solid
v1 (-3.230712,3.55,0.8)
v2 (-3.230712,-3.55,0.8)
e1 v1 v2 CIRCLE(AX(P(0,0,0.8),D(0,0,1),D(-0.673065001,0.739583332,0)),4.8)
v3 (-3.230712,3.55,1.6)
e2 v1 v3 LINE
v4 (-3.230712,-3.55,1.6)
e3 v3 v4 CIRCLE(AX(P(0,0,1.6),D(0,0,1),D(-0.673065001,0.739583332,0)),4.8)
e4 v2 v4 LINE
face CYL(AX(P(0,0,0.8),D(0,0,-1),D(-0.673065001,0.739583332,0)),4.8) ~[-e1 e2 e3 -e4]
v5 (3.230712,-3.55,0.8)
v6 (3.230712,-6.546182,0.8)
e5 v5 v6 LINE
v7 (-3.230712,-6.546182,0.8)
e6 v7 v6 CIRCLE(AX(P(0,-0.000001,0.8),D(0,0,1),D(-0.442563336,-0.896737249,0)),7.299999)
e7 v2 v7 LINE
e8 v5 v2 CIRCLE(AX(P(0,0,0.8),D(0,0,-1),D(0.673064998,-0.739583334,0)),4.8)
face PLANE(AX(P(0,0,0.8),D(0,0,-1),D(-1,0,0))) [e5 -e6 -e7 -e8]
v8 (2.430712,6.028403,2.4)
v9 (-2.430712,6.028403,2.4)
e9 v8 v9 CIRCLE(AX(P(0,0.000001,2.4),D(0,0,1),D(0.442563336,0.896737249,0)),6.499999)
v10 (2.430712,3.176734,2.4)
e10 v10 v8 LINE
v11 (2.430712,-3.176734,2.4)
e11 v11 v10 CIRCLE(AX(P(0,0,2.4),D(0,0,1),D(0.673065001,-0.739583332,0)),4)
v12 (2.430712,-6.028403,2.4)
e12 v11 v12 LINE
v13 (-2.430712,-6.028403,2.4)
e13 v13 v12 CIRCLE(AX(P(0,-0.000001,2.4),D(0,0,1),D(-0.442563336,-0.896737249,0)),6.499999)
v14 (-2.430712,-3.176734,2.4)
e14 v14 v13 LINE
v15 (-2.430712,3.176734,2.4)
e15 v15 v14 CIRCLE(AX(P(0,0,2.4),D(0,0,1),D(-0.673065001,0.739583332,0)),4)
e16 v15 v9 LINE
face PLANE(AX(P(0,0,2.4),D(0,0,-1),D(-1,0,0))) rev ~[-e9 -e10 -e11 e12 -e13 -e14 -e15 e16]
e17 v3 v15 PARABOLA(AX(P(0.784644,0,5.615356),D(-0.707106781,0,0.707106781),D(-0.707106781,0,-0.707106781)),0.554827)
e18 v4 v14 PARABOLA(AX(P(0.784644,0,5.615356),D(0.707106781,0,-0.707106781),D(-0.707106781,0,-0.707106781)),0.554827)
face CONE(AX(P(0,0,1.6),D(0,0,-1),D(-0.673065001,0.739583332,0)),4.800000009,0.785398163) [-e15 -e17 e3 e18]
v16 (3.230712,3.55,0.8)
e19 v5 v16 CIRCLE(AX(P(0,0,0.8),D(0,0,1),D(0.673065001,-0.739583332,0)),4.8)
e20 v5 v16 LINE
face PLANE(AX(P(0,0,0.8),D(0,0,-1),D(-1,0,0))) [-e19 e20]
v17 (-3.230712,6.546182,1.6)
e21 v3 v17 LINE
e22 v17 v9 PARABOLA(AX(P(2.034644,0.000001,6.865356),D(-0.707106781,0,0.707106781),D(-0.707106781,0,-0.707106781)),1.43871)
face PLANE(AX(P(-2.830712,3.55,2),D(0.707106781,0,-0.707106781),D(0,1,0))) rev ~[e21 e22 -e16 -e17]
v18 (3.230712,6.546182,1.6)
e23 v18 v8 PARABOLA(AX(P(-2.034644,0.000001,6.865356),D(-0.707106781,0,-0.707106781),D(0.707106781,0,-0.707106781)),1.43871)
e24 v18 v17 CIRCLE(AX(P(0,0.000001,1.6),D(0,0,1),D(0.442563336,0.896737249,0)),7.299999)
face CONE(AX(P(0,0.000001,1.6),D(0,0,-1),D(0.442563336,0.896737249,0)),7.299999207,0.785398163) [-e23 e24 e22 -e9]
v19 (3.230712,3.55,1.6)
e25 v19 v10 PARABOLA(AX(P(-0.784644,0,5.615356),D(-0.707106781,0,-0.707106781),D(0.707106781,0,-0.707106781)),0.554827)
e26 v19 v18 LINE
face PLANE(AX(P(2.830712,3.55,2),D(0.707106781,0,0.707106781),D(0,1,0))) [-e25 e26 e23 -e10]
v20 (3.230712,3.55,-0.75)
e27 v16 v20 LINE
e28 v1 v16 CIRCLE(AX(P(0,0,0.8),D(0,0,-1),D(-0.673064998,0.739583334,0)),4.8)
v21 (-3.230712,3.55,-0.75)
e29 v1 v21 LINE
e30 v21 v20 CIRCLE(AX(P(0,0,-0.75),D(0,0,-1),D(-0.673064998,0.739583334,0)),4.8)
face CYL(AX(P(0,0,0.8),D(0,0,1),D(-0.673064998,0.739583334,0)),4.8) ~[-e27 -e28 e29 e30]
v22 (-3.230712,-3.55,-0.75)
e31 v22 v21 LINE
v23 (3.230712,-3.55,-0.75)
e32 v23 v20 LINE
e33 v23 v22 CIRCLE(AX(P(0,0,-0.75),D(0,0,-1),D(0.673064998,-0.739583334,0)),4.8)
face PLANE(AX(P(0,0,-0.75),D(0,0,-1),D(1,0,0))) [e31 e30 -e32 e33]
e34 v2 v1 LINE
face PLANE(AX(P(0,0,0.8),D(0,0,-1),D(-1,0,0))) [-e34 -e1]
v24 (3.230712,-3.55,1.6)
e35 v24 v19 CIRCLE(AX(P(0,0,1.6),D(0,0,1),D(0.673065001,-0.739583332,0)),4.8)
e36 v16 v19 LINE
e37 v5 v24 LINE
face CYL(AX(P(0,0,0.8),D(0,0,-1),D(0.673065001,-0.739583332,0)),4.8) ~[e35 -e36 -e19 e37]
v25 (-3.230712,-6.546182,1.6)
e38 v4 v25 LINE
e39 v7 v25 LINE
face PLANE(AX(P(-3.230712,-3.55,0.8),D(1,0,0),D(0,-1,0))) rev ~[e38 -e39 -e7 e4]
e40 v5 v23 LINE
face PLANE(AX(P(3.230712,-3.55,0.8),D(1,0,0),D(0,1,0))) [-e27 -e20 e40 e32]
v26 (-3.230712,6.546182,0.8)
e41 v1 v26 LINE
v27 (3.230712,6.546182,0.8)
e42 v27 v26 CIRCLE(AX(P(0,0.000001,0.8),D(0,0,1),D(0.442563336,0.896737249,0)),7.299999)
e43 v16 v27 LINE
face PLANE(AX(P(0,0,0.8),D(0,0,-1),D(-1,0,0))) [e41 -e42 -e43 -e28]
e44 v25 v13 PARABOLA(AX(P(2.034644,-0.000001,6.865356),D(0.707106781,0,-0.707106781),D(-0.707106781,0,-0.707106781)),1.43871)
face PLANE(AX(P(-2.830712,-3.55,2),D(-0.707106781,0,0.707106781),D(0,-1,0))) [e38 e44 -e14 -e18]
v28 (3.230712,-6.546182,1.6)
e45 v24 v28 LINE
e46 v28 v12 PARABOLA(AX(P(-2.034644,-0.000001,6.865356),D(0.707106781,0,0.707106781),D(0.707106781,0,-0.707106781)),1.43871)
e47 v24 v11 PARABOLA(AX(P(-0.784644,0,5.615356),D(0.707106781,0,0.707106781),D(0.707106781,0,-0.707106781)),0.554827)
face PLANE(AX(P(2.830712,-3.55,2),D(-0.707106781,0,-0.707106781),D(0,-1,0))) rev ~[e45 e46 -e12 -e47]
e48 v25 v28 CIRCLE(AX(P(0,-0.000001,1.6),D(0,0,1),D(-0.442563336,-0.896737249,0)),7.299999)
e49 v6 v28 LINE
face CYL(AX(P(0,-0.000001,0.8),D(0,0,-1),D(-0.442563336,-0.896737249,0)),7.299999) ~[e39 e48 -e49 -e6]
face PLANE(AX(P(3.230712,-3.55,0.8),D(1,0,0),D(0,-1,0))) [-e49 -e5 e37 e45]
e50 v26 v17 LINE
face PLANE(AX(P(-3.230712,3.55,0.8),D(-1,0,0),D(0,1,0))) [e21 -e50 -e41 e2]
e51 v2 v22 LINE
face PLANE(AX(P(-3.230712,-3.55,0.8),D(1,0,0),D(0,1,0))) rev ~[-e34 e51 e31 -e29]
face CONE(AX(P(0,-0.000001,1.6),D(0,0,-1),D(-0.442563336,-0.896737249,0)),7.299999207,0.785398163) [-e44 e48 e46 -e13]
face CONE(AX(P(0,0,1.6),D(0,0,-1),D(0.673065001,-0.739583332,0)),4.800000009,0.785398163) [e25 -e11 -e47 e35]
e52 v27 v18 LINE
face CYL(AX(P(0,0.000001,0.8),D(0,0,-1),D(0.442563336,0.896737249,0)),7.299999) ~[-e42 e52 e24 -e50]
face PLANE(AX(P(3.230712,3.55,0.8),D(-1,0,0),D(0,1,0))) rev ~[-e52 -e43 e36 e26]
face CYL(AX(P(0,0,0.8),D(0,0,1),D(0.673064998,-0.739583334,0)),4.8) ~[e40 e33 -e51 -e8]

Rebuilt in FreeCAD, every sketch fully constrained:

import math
import FreeCAD as App
import Part
import Sketcher

V = App.Vector


def edges_at(feature, points):
    """Names of the edges that pass closest to the given points."""
    edges = feature.Shape.Edges
    near = lambda p: min(range(len(edges)), key=lambda i: edges[i].distToShape(Part.Vertex(*p))[0])
    return sorted({f"Edge{near(p) + 1}" for p in points})

doc = App.newDocument("Part")
body = doc.addObject("PartDesign::Body", "Body")

# Sketch on XY plane
sketch1 = body.newObject("Sketcher::SketchObject", "Sketch")
sketch1.AttachmentSupport = (doc.getObject("XY_Plane"), [""])
sketch1.MapMode = "FlatFace"
sketch1.addGeometry(Part.LineSegment(V(-3.230712, 6.546182, 0), V(-3.230712, 3.55, 0)), False)
sketch1.addGeometry(Part.ArcOfCircle(Part.Circle(V(0, 0, 0), V(0, 0, 1), 4.8), math.radians(132.304066), math.radians(227.695934)), False)
sketch1.addGeometry(Part.LineSegment(V(-3.230712, -3.55, 0), V(-3.230712, -6.546182, 0)), False)
sketch1.addGeometry(Part.ArcOfCircle(Part.Circle(V(0, -0.000001, 0), V(0, 0, 1), 7.299999), math.radians(-116.267547), math.radians(-63.732453)), False)
sketch1.addGeometry(Part.LineSegment(V(3.230712, -6.546182, 0), V(3.230712, -3.55, 0)), False)
sketch1.addGeometry(Part.ArcOfCircle(Part.Circle(V(0, 0, 0), V(0, 0, 1), 4.8), math.radians(-47.695934), math.radians(47.695934)), False)
sketch1.addGeometry(Part.LineSegment(V(3.230712, 3.55, 0), V(3.230712, 6.546182, 0)), False)
sketch1.addGeometry(Part.ArcOfCircle(Part.Circle(V(0, 0.000001, 0), V(0, 0, 1), 7.299999), math.radians(63.732453), math.radians(116.267547)), False)
sketch1.addConstraint(Sketcher.Constraint("Coincident", 0, 2, 1, 1))
sketch1.addConstraint(Sketcher.Constraint("Coincident", 1, 2, 2, 1))
sketch1.addConstraint(Sketcher.Constraint("Coincident", 2, 2, 3, 1))
sketch1.addConstraint(Sketcher.Constraint("Coincident", 3, 2, 4, 1))
sketch1.addConstraint(Sketcher.Constraint("Coincident", 4, 2, 5, 1))
sketch1.addConstraint(Sketcher.Constraint("Coincident", 5, 2, 6, 1))
sketch1.addConstraint(Sketcher.Constraint("Coincident", 6, 2, 7, 1))
sketch1.addConstraint(Sketcher.Constraint("Coincident", 7, 2, 0, 1))
sketch1.addConstraint(Sketcher.Constraint("Vertical", 0))
sketch1.addConstraint(Sketcher.Constraint("Vertical", 2))
sketch1.addConstraint(Sketcher.Constraint("Vertical", 4))
sketch1.addConstraint(Sketcher.Constraint("Vertical", 6))
sketch1.addConstraint(Sketcher.Constraint("Coincident", 1, 3, -1, 1))
sketch1.addConstraint(Sketcher.Constraint("Coincident", 3, 3, -1, 1))
sketch1.addConstraint(Sketcher.Constraint("Coincident", 5, 3, -1, 1))
sketch1.addConstraint(Sketcher.Constraint("Coincident", 7, 3, -1, 1))
sketch1.addConstraint(Sketcher.Constraint("Equal", 1, 5))
sketch1.addConstraint(Sketcher.Constraint("Equal", 3, 7))
sketch1.addConstraint(Sketcher.Constraint("Horizontal", 2, 2, 3, 2))
sketch1.addConstraint(Sketcher.Constraint("Horizontal", 0, 2, 5, 2))
sketch1.addConstraint(Sketcher.Constraint("Vertical", 0, 2, 1, 2))
sketch1.addConstraint(Sketcher.Constraint("Radius", 1, 4.8))
sketch1.addConstraint(Sketcher.Constraint("Radius", 3, 7.299999))
sketch1.addConstraint(Sketcher.Constraint("DistanceY", 1, 2, 0, 2, 7.1))
pad1 = body.newObject("PartDesign::Pad", "Pad")
pad1.Profile = sketch1
pad1.Length = 1.6
doc.recompute()

chamfer = body.newObject("PartDesign::Chamfer", "Chamfer")
chamfer.Base = (pad1, edges_at(pad1, [
    (-4.8, 0, 1.6),
    (-3.231, -5.048, 1.6),
    (0, -7.3, 1.6),
    (3.231, -5.048, 1.6),
    (4.8, 0, 1.6),
    (3.231, 5.048, 1.6),
    (0, 7.3, 1.6),
    (-3.231, 5.048, 1.6),
]))
chamfer.Size = 0.8

# Sketch on XY plane
sketch2 = body.newObject("Sketcher::SketchObject", "Sketch001")
sketch2.AttachmentSupport = (doc.getObject("XY_Plane"), [""])
sketch2.MapMode = "FlatFace"
sketch2.addGeometry(Part.LineSegment(V(-3.230712, -3.55, 0), V(-3.230712, 3.55, 0)), False)
sketch2.addGeometry(Part.ArcOfCircle(Part.Circle(V(0, 0, 0), V(0, 0, 1), 4.8), math.radians(47.695934), math.radians(132.304066)), False)
sketch2.addGeometry(Part.LineSegment(V(3.230712, 3.55, 0), V(3.230712, -3.55, 0)), False)
sketch2.addGeometry(Part.ArcOfCircle(Part.Circle(V(0, 0, 0), V(0, 0, 1), 4.8), math.radians(-132.304066), math.radians(-47.695934)), False)
sketch2.addConstraint(Sketcher.Constraint("Coincident", 0, 2, 1, 2))
sketch2.addConstraint(Sketcher.Constraint("Coincident", 1, 1, 2, 1))
sketch2.addConstraint(Sketcher.Constraint("Coincident", 2, 2, 3, 2))
sketch2.addConstraint(Sketcher.Constraint("Coincident", 3, 1, 0, 1))
sketch2.addConstraint(Sketcher.Constraint("Vertical", 0))
sketch2.addConstraint(Sketcher.Constraint("Vertical", 2))
sketch2.addConstraint(Sketcher.Constraint("Coincident", 1, 3, -1, 1))
sketch2.addConstraint(Sketcher.Constraint("Coincident", 3, 3, -1, 1))
sketch2.addConstraint(Sketcher.Constraint("Equal", 1, 3))
sketch2.addConstraint(Sketcher.Constraint("Horizontal", 0, 2, 1, 1))
sketch2.addConstraint(Sketcher.Constraint("Radius", 1, 4.8))
sketch2.addConstraint(Sketcher.Constraint("DistanceY", 0, 1, 0, 2, 7.1))
pad2 = body.newObject("PartDesign::Pad", "Pad001")
pad2.Profile = sketch2
pad2.Length = 1.55
pad2.Reversed = True
body2 = doc.addObject("PartDesign::Body", "Body001")
doc.recompute()

body.Placement = App.Placement(V(0, 0, 0.8), App.Rotation(V(0, 0, 1), 0))
boolean = body2.newObject("PartDesign::Boolean", "Boolean")
boolean.Type = "Fuse"
boolean.addObjects([body])

doc.recompute()
